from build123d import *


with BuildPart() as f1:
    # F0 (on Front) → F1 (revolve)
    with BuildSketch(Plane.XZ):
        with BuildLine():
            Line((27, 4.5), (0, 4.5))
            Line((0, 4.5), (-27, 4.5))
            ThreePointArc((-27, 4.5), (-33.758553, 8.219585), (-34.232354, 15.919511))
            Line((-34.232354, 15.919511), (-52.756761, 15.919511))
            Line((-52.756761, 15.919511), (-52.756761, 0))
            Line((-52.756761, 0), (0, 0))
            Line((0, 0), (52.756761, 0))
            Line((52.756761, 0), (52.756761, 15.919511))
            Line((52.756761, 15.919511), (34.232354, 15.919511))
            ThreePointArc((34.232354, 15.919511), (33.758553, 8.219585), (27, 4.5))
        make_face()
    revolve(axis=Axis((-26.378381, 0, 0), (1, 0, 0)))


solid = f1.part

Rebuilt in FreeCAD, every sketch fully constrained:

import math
import FreeCAD as App
import Part
import Sketcher

doc = App.newDocument("Part")
body = doc.addObject("PartDesign::Body", "Body")

# Sketch on XZ plane
sketch1 = body.newObject("Sketcher::SketchObject", "Sketch")
sketch1.AttachmentSupport = (doc.getObject("XZ_Plane"), [""])
sketch1.MapMode = "FlatFace"
sketch1.addGeometry([
    Part.LineSegment(App.Vector(27, 4, 0), App.Vector(-27, 4, 0)),  # 0
    Part.ArcOfCircle(Part.Circle(App.Vector(-27, 13, 0), App.Vector(0, 0, 1), 8), math.radians(155), math.radians(270)),  # 1
    Part.LineSegment(App.Vector(-34, 16, 0), App.Vector(-53, 16, 0)),  # 2
    Part.LineSegment(App.Vector(-53, 16, 0), App.Vector(-53, 0, 0)),  # 3
    Part.LineSegment(App.Vector(-53, 0, 0), App.Vector(53, 0, 0)),  # 4
    Part.LineSegment(App.Vector(53, 0, 0), App.Vector(53, 16, 0)),  # 5
    Part.LineSegment(App.Vector(53, 16, 0), App.Vector(34, 16, 0)),  # 6
    Part.ArcOfCircle(Part.Circle(App.Vector(27, 13, 0), App.Vector(0, 0, 1), 8), math.radians(-90), math.radians(25)),  # 7
], False)
sketch1.addConstraint([
    Sketcher.Constraint("Tangent", 0, 2, 1, 2),
    Sketcher.Constraint("Coincident", 1, 1, 2, 1),
    Sketcher.Constraint("Coincident", 2, 2, 3, 1),
    Sketcher.Constraint("Coincident", 3, 2, 4, 1),
    Sketcher.Constraint("Coincident", 4, 2, 5, 1),
    Sketcher.Constraint("Coincident", 5, 2, 6, 1),
    Sketcher.Constraint("Coincident", 6, 2, 7, 2),
    Sketcher.Constraint("Tangent", 7, 1, 0, 1),
    Sketcher.Constraint("Horizontal", 0),
    Sketcher.Constraint("Horizontal", 2),
    Sketcher.Constraint("Vertical", 3),
    Sketcher.Constraint("Horizontal", 4),
    Sketcher.Constraint("Vertical", 5),
    Sketcher.Constraint("Horizontal", 6),
    Sketcher.Constraint("Equal", 1, 7),
    Sketcher.Constraint("Symmetric", 3, 2, 4, 2, -1, 1),
    Sketcher.Constraint("Symmetric", 1, 1, 6, 2, -2),
    Sketcher.Constraint("Radius", 1, 8.000001),
    Sketcher.Constraint("DistanceX", 0, 2, 0, 1, 54.0),
    Sketcher.Constraint("DistanceY", -1, 1, 1, 3, 12.500001),
    Sketcher.Constraint("DistanceX", 4, 1, 4, 2, 105.513522),
    Sketcher.Constraint("DistanceY", 3, 2, 3, 1, 15.919511),
])
revolution = body.newObject("PartDesign::Revolution", "Revolution")
revolution.Profile = sketch1
revolution.ReferenceAxis = (sketch1, ["H_Axis"])
revolution.Angle = 360

doc.recompute()
